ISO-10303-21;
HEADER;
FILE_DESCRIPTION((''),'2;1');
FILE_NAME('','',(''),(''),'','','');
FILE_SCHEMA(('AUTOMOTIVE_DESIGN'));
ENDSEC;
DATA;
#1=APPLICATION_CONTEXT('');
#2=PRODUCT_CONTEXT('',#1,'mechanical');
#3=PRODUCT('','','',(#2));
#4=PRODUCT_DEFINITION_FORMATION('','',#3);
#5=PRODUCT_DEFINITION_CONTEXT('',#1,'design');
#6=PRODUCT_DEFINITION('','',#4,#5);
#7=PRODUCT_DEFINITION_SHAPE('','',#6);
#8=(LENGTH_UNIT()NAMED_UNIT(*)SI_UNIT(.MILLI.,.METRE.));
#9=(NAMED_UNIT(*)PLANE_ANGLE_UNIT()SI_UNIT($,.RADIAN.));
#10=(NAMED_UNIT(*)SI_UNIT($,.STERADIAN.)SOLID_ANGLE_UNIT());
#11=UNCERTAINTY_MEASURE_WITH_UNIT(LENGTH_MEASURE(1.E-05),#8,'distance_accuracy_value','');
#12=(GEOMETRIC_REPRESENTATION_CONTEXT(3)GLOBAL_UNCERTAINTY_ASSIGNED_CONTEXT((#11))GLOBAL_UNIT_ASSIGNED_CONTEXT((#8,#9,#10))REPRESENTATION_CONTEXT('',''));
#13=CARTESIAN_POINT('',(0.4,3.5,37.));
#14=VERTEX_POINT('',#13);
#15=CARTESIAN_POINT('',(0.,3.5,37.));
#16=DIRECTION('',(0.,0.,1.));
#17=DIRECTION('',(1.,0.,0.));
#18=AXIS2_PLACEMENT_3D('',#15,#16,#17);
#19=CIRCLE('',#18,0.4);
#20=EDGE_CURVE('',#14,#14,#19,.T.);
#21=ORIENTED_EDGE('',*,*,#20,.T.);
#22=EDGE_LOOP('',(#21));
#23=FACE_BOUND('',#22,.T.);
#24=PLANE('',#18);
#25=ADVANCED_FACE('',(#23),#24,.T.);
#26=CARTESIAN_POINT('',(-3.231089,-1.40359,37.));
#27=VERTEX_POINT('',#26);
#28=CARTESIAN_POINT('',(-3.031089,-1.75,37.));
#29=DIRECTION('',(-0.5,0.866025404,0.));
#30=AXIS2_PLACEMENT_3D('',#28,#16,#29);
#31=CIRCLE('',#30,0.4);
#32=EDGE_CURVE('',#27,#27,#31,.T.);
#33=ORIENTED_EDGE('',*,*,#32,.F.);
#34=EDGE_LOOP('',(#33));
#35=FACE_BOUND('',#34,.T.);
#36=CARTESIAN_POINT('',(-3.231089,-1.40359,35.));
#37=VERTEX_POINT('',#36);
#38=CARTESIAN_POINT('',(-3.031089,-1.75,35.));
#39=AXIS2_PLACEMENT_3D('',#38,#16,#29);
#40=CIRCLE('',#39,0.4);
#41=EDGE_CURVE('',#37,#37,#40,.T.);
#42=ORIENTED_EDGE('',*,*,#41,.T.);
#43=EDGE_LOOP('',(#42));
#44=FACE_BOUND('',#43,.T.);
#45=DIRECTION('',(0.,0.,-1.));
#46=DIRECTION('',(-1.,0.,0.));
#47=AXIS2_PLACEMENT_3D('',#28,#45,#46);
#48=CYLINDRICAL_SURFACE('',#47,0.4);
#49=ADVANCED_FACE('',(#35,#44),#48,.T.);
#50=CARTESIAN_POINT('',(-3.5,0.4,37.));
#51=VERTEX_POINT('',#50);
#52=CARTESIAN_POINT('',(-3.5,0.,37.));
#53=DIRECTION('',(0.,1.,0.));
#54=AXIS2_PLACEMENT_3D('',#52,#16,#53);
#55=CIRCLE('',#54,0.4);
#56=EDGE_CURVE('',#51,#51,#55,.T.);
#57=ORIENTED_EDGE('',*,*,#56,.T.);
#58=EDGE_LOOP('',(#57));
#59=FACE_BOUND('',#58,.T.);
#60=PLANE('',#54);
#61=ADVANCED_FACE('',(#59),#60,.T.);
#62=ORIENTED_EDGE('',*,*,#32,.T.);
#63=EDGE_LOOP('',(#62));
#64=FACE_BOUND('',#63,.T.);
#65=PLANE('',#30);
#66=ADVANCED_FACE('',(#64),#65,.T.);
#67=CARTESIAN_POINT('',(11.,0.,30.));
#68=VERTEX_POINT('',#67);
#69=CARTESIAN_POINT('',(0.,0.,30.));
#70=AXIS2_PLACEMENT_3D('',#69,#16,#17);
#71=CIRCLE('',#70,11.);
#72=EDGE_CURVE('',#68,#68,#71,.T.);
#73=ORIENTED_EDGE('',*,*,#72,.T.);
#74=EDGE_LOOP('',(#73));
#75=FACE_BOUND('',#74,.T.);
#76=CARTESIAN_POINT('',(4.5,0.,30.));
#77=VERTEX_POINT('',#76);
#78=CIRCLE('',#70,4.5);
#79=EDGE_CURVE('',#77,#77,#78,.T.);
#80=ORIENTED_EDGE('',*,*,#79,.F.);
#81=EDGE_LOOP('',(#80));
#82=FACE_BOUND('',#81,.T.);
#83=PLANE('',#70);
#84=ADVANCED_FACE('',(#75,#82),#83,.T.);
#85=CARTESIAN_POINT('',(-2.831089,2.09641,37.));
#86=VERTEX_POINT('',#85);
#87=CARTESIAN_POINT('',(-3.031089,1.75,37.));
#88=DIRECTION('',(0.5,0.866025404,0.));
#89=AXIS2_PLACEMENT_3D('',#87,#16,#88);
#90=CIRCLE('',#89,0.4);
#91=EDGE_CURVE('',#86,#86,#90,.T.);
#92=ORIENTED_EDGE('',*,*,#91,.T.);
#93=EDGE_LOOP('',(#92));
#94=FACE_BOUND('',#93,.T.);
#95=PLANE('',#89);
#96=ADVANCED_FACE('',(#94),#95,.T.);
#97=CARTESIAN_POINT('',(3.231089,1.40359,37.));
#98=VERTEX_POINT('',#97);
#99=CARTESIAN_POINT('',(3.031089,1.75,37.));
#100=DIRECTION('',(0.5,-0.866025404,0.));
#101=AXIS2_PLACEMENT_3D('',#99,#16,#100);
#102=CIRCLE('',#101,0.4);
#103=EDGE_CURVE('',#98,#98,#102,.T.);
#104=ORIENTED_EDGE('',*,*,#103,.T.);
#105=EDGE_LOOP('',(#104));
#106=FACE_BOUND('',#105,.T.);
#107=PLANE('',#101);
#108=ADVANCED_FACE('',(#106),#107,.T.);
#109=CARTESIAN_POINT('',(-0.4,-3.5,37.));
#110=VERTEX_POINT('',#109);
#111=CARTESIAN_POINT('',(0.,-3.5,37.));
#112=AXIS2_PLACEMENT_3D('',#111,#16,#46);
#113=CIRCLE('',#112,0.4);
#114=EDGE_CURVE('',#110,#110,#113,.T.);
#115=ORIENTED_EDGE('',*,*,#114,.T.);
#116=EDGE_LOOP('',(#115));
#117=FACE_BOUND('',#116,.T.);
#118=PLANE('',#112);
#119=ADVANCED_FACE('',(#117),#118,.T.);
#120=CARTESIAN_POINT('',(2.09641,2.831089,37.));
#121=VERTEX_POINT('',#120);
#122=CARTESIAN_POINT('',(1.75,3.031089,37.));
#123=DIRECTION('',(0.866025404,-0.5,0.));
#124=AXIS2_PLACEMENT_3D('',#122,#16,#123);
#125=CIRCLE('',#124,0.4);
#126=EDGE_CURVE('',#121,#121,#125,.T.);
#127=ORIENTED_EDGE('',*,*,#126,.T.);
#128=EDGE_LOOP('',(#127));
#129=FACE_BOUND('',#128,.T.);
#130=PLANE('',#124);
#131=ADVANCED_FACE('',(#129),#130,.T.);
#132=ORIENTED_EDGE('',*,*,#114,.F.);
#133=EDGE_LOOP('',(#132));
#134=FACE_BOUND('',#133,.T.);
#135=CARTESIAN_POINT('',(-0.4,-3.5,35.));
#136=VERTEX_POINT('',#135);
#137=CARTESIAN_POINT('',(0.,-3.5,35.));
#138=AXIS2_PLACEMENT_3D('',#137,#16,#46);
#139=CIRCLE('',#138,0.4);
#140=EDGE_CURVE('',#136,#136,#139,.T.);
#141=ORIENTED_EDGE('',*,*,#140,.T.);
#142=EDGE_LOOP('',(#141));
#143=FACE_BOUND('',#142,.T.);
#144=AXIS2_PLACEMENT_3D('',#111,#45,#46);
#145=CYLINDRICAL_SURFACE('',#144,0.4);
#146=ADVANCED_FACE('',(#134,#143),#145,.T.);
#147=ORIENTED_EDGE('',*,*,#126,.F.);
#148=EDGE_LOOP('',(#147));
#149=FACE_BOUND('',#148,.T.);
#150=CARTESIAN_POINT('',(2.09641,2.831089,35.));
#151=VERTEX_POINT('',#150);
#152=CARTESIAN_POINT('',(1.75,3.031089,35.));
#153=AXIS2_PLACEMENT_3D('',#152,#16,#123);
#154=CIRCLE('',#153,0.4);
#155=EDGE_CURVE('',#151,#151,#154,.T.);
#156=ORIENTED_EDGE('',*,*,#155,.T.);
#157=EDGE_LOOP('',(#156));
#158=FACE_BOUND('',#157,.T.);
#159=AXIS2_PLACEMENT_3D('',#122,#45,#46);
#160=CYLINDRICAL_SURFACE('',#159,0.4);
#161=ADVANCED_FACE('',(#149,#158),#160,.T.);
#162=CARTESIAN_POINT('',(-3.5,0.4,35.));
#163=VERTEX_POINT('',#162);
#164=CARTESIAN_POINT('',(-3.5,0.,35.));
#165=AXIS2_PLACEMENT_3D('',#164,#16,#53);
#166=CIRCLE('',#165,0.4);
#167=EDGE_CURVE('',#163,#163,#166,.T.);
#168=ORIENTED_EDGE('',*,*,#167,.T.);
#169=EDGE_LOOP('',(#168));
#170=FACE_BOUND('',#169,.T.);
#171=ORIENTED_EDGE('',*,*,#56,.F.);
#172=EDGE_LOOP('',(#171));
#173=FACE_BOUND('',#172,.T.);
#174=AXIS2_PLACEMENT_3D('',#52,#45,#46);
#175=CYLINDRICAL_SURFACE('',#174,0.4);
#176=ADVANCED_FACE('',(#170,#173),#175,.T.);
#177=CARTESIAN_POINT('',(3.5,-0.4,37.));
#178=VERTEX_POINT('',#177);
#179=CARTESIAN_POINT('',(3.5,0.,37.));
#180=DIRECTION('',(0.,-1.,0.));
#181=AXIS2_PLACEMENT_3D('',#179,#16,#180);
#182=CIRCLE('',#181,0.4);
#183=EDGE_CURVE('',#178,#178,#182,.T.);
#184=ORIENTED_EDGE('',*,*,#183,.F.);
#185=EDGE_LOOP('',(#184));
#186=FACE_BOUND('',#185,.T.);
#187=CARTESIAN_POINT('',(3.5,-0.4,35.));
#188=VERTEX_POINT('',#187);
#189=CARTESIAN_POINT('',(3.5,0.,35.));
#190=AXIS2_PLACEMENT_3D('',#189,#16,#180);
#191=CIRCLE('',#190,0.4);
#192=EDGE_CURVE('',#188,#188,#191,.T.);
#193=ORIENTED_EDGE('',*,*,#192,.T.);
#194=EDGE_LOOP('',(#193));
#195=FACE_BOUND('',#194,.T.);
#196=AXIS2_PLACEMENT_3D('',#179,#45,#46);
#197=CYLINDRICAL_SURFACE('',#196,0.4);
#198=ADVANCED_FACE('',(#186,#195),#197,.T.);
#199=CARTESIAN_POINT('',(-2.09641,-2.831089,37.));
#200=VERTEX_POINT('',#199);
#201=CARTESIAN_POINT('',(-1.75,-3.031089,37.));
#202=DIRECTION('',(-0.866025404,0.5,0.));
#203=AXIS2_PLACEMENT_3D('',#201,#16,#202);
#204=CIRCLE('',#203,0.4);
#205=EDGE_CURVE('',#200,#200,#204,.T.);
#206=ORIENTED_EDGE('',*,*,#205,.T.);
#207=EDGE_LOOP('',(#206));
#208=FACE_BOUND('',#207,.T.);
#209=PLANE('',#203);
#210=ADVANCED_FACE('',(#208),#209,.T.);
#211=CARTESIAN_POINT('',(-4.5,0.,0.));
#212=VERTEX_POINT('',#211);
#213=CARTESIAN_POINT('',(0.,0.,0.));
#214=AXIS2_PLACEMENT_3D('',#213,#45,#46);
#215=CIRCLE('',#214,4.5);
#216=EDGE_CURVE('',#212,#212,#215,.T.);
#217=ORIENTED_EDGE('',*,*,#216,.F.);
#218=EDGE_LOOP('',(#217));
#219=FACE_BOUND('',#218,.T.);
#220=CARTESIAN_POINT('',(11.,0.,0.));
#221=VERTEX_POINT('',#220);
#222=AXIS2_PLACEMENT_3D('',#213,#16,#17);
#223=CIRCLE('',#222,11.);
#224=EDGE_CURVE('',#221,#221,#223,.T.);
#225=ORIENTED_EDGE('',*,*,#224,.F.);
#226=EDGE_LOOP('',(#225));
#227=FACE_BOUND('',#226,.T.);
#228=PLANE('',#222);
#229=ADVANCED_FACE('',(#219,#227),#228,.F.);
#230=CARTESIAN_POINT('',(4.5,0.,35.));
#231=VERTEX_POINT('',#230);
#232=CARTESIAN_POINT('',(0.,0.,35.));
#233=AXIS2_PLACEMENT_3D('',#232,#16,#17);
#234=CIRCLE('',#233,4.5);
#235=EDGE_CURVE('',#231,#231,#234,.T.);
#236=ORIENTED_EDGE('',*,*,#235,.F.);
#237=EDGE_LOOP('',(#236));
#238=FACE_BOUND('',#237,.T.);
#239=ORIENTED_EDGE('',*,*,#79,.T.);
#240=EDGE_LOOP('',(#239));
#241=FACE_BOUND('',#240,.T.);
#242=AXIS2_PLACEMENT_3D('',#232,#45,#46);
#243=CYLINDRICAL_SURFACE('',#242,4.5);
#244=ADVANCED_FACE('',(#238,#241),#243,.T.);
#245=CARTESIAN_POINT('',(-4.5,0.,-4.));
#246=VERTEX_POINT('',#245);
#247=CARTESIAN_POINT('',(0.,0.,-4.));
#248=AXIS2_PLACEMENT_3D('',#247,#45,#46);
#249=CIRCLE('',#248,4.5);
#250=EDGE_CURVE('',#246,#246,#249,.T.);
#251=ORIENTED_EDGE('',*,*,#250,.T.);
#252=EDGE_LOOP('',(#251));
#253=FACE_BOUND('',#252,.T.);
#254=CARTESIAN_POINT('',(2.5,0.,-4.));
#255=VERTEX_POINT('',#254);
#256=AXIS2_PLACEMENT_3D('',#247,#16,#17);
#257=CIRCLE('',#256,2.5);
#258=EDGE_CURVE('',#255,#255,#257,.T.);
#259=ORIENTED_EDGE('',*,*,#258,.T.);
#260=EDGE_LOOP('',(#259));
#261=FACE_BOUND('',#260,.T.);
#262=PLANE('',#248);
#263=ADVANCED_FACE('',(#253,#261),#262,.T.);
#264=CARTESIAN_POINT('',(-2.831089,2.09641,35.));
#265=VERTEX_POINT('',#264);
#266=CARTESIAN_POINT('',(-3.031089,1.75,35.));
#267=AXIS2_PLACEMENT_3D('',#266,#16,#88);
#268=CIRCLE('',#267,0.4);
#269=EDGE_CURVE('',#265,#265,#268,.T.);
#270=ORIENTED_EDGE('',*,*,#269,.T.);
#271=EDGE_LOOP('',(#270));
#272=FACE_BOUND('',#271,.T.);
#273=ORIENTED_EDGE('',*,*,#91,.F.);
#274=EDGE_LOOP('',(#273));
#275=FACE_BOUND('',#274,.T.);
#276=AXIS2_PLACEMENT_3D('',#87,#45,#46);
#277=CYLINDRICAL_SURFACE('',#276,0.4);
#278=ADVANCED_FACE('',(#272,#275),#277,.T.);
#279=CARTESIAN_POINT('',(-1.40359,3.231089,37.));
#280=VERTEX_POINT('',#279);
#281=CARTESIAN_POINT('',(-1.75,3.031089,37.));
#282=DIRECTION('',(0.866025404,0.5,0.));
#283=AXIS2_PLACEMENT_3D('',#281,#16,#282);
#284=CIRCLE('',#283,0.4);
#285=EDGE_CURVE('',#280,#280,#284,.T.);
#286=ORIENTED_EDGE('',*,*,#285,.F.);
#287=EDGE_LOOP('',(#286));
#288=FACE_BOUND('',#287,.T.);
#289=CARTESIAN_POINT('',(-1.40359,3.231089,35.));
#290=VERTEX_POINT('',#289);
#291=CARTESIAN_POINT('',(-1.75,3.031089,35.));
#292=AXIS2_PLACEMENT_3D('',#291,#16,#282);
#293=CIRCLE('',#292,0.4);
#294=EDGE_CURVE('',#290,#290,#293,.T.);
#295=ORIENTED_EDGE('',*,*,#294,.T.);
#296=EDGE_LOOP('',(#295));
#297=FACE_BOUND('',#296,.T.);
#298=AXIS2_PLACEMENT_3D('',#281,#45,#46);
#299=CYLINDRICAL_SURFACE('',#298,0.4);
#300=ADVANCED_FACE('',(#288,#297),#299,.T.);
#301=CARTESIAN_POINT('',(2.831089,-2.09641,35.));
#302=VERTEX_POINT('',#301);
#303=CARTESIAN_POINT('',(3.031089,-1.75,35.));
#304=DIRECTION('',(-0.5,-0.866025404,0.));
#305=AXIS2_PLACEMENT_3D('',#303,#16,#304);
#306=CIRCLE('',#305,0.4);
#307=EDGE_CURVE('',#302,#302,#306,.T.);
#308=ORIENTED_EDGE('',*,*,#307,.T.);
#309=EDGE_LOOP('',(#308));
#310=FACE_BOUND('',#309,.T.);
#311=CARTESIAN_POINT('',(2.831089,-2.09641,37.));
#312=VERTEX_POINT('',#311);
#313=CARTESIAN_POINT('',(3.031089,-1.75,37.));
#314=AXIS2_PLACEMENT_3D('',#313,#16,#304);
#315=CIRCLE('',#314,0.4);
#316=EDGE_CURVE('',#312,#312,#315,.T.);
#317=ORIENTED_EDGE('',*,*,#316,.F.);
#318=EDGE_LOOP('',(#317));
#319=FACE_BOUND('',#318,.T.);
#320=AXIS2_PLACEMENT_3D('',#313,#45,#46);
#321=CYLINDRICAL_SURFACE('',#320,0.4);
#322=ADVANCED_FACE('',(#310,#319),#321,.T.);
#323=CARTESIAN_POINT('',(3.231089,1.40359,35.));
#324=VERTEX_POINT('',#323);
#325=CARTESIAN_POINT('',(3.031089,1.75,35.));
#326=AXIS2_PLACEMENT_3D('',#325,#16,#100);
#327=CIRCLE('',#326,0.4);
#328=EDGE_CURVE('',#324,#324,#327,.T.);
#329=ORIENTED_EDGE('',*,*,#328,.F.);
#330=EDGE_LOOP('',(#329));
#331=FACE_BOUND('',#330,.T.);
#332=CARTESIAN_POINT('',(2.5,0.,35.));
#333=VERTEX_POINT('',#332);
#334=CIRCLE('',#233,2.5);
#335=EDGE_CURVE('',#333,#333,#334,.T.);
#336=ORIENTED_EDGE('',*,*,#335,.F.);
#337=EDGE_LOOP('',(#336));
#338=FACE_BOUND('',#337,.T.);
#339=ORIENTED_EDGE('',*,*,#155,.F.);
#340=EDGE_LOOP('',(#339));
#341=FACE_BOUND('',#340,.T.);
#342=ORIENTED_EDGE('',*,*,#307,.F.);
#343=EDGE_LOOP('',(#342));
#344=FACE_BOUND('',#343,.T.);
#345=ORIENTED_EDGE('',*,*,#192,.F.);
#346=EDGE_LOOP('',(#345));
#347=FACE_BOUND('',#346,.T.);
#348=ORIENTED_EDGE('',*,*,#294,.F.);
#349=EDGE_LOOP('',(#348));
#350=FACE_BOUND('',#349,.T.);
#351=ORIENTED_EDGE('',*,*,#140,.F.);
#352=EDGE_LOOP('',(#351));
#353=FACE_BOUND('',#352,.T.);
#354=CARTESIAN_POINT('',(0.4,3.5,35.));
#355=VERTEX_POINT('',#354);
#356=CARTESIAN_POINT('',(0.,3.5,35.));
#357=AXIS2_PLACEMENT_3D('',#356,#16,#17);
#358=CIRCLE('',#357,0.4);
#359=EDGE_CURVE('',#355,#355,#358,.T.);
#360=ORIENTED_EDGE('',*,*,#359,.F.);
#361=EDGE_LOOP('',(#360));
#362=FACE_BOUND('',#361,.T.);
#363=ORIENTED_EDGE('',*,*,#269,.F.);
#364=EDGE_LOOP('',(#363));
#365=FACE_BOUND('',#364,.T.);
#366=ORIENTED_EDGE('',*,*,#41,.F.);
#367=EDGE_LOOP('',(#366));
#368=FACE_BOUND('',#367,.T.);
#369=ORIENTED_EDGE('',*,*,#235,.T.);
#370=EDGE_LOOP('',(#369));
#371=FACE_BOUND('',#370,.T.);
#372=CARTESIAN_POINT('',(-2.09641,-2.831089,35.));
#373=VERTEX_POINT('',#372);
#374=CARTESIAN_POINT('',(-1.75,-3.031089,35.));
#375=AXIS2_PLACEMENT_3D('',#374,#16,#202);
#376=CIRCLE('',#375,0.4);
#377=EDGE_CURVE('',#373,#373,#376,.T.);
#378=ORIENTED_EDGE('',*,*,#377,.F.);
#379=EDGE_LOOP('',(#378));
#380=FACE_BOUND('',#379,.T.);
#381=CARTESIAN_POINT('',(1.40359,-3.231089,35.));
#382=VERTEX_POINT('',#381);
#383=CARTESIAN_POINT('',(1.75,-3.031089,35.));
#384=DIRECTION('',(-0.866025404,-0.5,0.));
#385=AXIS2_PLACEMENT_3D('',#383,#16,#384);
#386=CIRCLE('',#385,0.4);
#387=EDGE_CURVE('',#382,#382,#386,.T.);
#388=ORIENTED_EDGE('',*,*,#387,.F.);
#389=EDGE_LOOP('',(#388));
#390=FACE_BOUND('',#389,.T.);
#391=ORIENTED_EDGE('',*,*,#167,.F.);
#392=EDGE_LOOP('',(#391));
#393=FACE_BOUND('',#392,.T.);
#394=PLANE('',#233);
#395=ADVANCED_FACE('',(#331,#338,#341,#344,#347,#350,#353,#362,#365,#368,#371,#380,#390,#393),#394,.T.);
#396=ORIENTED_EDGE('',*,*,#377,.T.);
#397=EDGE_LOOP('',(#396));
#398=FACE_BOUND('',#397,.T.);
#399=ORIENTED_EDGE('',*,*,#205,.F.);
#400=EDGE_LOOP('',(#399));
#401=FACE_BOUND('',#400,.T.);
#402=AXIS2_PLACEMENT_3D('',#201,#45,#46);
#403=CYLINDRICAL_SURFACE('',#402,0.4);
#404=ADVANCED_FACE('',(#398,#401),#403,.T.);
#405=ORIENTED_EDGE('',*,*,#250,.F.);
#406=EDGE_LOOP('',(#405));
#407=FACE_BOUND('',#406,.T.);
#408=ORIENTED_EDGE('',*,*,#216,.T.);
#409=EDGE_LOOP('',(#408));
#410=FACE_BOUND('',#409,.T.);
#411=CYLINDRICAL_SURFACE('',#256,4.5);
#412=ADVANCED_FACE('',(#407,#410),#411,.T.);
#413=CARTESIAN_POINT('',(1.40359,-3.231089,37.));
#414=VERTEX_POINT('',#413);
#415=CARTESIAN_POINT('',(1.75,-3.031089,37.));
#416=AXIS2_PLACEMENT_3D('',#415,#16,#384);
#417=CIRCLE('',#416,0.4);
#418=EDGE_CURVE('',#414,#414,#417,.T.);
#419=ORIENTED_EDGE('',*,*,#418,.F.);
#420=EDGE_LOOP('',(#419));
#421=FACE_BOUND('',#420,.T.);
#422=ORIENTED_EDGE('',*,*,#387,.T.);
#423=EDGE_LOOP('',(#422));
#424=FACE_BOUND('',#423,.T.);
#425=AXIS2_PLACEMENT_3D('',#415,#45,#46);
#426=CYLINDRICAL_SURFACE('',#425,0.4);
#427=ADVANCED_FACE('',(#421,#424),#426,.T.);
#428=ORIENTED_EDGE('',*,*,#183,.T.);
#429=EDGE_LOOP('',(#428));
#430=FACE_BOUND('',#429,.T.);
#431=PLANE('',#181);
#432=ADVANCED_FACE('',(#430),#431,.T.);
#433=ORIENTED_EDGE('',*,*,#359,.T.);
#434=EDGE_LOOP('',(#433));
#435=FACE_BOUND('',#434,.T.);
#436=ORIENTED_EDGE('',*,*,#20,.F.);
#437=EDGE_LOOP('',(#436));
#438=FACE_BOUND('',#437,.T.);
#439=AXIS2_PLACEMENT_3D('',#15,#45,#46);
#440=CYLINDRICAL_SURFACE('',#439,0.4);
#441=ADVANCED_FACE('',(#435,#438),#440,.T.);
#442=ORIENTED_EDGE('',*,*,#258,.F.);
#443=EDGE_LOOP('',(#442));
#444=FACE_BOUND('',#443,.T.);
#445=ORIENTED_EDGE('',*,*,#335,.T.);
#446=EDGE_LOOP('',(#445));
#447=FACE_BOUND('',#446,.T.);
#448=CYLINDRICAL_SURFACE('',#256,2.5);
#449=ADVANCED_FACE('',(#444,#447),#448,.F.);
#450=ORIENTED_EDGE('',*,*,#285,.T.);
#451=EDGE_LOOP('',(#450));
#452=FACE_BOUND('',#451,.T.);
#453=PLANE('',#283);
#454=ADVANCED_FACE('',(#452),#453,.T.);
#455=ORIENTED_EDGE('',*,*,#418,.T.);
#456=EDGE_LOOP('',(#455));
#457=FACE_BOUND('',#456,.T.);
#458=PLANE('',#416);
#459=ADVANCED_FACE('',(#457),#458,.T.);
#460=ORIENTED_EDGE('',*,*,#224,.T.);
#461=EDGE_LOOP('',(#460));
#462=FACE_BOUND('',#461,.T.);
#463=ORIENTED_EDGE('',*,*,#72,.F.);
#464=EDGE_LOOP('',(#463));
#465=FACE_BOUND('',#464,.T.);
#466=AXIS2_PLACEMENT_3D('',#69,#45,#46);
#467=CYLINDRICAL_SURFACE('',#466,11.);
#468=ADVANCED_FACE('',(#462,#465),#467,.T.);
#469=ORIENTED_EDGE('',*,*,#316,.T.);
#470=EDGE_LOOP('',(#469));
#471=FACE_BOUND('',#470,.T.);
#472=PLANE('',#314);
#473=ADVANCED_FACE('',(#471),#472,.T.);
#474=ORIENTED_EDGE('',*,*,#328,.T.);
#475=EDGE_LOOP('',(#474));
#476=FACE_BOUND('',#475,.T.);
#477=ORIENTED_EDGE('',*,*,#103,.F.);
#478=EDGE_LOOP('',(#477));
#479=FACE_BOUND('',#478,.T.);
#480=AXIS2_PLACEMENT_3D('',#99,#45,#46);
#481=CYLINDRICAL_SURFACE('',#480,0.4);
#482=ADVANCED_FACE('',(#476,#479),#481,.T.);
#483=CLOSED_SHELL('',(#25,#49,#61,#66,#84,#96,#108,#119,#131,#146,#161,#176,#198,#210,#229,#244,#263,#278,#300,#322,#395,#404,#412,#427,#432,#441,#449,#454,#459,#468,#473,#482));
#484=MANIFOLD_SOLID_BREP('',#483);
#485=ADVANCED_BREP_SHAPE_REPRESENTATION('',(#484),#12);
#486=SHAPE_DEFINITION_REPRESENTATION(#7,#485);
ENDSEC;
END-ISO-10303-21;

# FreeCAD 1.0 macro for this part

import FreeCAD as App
import Part
import Sketcher

doc = App.newDocument("Part")
body = doc.addObject("PartDesign::Body", "Body")

sketch1 = body.newObject("Sketcher::SketchObject", "Sketch")
sketch1.AttachmentSupport = (doc.getObject("XY_Plane"), [""])
sketch1.MapMode = "FlatFace"
sketch1.addGeometry(Part.Circle(App.Vector(0, 0, 0), App.Vector(0, 0, 1), 11), False)
sketch1.addConstraint([
    Sketcher.Constraint("Coincident", 0, 3, -1, 1),
    Sketcher.Constraint("Diameter", 0, 22.0),
])
pad1 = body.newObject("PartDesign::Pad", "Pad")
pad1.Profile = sketch1
pad1.Length = 30

sketch2 = body.newObject("Sketcher::SketchObject", "Sketch001")
sketch2.AttachmentSupport = (doc.getObject("XY_Plane"), [""])
sketch2.MapMode = "FlatFace"
sketch2.AttachmentOffset = App.Placement(App.Vector(0, 0, 30), App.Rotation())
sketch2.addGeometry(Part.Circle(App.Vector(0, 0, 0), App.Vector(0, 0, 1), 4.5), False)
sketch2.addConstraint([
    Sketcher.Constraint("Coincident", 0, 3, -1, 1),
    Sketcher.Constraint("Diameter", 0, 9.0),
])
pad2 = body.newObject("PartDesign::Pad", "Pad001")
pad2.Profile = sketch2
pad2.Length = 5

sketch3 = body.newObject("Sketcher::SketchObject", "Sketch002")
sketch3.AttachmentSupport = (doc.getObject("XY_Plane"), [""])
sketch3.MapMode = "FlatFace"
sketch3.AttachmentOffset = App.Placement(App.Vector(0, 0, -4), App.Rotation())
sketch3.addGeometry(Part.Circle(App.Vector(0, 0, 0), App.Vector(0, 0, 1), 4.5), False)
sketch3.addConstraint([
    Sketcher.Constraint("Coincident", 0, 3, -1, 1),
    Sketcher.Constraint("Diameter", 0, 9.0),
])
pad3 = body.newObject("PartDesign::Pad", "Pad002")
pad3.Profile = sketch3
pad3.Length = 4

sketch4 = body.newObject("Sketcher::SketchObject", "Sketch003")
sketch4.AttachmentSupport = (doc.getObject("XY_Plane"), [""])
sketch4.MapMode = "FlatFace"
sketch4.AttachmentOffset = App.Placement(App.Vector(0, 0, 35), App.Rotation())
sketch4.addGeometry(Part.Circle(App.Vector(0, 0, 0), App.Vector(0, 0, 1), 2.5), False)
sketch4.addConstraint([
    Sketcher.Constraint("Coincident", 0, 3, -1, 1),
    Sketcher.Constraint("Diameter", 0, 5.0),
])
pocket1 = body.newObject("PartDesign::Pocket", "Pocket")
pocket1.Profile = sketch4
pocket1.Type = "ThroughAll"

sketch5 = body.newObject("Sketcher::SketchObject", "Sketch004")
sketch5.AttachmentSupport = (doc.getObject("XY_Plane"), [""])
sketch5.MapMode = "FlatFace"
sketch5.AttachmentOffset = App.Placement(App.Vector(0, 0, 35), App.Rotation())
sketch5.addGeometry(Part.Circle(App.Vector(0, 3.5, 0), App.Vector(0, 0, 1), 0.4), False)
sketch5.addConstraint([
    Sketcher.Constraint("PointOnObject", 0, 3, -2),
    Sketcher.Constraint("Diameter", 0, 0.8),
    Sketcher.Constraint("DistanceY", -1, 1, 0, 3, 3.5),
])
pad4 = body.newObject("PartDesign::Pad", "Pad003")
pad4.Profile = sketch5
pad4.Length = 2
doc.recompute()

polarpattern = body.newObject("PartDesign::PolarPattern", "PolarPattern")
polarpattern.Originals = [pad4]
polarpattern.Axis = (doc.getObject("Z_Axis"), [""])
polarpattern.Angle = 360
polarpattern.Occurrences = 12
body.Tip = polarpattern

doc.recompute()
